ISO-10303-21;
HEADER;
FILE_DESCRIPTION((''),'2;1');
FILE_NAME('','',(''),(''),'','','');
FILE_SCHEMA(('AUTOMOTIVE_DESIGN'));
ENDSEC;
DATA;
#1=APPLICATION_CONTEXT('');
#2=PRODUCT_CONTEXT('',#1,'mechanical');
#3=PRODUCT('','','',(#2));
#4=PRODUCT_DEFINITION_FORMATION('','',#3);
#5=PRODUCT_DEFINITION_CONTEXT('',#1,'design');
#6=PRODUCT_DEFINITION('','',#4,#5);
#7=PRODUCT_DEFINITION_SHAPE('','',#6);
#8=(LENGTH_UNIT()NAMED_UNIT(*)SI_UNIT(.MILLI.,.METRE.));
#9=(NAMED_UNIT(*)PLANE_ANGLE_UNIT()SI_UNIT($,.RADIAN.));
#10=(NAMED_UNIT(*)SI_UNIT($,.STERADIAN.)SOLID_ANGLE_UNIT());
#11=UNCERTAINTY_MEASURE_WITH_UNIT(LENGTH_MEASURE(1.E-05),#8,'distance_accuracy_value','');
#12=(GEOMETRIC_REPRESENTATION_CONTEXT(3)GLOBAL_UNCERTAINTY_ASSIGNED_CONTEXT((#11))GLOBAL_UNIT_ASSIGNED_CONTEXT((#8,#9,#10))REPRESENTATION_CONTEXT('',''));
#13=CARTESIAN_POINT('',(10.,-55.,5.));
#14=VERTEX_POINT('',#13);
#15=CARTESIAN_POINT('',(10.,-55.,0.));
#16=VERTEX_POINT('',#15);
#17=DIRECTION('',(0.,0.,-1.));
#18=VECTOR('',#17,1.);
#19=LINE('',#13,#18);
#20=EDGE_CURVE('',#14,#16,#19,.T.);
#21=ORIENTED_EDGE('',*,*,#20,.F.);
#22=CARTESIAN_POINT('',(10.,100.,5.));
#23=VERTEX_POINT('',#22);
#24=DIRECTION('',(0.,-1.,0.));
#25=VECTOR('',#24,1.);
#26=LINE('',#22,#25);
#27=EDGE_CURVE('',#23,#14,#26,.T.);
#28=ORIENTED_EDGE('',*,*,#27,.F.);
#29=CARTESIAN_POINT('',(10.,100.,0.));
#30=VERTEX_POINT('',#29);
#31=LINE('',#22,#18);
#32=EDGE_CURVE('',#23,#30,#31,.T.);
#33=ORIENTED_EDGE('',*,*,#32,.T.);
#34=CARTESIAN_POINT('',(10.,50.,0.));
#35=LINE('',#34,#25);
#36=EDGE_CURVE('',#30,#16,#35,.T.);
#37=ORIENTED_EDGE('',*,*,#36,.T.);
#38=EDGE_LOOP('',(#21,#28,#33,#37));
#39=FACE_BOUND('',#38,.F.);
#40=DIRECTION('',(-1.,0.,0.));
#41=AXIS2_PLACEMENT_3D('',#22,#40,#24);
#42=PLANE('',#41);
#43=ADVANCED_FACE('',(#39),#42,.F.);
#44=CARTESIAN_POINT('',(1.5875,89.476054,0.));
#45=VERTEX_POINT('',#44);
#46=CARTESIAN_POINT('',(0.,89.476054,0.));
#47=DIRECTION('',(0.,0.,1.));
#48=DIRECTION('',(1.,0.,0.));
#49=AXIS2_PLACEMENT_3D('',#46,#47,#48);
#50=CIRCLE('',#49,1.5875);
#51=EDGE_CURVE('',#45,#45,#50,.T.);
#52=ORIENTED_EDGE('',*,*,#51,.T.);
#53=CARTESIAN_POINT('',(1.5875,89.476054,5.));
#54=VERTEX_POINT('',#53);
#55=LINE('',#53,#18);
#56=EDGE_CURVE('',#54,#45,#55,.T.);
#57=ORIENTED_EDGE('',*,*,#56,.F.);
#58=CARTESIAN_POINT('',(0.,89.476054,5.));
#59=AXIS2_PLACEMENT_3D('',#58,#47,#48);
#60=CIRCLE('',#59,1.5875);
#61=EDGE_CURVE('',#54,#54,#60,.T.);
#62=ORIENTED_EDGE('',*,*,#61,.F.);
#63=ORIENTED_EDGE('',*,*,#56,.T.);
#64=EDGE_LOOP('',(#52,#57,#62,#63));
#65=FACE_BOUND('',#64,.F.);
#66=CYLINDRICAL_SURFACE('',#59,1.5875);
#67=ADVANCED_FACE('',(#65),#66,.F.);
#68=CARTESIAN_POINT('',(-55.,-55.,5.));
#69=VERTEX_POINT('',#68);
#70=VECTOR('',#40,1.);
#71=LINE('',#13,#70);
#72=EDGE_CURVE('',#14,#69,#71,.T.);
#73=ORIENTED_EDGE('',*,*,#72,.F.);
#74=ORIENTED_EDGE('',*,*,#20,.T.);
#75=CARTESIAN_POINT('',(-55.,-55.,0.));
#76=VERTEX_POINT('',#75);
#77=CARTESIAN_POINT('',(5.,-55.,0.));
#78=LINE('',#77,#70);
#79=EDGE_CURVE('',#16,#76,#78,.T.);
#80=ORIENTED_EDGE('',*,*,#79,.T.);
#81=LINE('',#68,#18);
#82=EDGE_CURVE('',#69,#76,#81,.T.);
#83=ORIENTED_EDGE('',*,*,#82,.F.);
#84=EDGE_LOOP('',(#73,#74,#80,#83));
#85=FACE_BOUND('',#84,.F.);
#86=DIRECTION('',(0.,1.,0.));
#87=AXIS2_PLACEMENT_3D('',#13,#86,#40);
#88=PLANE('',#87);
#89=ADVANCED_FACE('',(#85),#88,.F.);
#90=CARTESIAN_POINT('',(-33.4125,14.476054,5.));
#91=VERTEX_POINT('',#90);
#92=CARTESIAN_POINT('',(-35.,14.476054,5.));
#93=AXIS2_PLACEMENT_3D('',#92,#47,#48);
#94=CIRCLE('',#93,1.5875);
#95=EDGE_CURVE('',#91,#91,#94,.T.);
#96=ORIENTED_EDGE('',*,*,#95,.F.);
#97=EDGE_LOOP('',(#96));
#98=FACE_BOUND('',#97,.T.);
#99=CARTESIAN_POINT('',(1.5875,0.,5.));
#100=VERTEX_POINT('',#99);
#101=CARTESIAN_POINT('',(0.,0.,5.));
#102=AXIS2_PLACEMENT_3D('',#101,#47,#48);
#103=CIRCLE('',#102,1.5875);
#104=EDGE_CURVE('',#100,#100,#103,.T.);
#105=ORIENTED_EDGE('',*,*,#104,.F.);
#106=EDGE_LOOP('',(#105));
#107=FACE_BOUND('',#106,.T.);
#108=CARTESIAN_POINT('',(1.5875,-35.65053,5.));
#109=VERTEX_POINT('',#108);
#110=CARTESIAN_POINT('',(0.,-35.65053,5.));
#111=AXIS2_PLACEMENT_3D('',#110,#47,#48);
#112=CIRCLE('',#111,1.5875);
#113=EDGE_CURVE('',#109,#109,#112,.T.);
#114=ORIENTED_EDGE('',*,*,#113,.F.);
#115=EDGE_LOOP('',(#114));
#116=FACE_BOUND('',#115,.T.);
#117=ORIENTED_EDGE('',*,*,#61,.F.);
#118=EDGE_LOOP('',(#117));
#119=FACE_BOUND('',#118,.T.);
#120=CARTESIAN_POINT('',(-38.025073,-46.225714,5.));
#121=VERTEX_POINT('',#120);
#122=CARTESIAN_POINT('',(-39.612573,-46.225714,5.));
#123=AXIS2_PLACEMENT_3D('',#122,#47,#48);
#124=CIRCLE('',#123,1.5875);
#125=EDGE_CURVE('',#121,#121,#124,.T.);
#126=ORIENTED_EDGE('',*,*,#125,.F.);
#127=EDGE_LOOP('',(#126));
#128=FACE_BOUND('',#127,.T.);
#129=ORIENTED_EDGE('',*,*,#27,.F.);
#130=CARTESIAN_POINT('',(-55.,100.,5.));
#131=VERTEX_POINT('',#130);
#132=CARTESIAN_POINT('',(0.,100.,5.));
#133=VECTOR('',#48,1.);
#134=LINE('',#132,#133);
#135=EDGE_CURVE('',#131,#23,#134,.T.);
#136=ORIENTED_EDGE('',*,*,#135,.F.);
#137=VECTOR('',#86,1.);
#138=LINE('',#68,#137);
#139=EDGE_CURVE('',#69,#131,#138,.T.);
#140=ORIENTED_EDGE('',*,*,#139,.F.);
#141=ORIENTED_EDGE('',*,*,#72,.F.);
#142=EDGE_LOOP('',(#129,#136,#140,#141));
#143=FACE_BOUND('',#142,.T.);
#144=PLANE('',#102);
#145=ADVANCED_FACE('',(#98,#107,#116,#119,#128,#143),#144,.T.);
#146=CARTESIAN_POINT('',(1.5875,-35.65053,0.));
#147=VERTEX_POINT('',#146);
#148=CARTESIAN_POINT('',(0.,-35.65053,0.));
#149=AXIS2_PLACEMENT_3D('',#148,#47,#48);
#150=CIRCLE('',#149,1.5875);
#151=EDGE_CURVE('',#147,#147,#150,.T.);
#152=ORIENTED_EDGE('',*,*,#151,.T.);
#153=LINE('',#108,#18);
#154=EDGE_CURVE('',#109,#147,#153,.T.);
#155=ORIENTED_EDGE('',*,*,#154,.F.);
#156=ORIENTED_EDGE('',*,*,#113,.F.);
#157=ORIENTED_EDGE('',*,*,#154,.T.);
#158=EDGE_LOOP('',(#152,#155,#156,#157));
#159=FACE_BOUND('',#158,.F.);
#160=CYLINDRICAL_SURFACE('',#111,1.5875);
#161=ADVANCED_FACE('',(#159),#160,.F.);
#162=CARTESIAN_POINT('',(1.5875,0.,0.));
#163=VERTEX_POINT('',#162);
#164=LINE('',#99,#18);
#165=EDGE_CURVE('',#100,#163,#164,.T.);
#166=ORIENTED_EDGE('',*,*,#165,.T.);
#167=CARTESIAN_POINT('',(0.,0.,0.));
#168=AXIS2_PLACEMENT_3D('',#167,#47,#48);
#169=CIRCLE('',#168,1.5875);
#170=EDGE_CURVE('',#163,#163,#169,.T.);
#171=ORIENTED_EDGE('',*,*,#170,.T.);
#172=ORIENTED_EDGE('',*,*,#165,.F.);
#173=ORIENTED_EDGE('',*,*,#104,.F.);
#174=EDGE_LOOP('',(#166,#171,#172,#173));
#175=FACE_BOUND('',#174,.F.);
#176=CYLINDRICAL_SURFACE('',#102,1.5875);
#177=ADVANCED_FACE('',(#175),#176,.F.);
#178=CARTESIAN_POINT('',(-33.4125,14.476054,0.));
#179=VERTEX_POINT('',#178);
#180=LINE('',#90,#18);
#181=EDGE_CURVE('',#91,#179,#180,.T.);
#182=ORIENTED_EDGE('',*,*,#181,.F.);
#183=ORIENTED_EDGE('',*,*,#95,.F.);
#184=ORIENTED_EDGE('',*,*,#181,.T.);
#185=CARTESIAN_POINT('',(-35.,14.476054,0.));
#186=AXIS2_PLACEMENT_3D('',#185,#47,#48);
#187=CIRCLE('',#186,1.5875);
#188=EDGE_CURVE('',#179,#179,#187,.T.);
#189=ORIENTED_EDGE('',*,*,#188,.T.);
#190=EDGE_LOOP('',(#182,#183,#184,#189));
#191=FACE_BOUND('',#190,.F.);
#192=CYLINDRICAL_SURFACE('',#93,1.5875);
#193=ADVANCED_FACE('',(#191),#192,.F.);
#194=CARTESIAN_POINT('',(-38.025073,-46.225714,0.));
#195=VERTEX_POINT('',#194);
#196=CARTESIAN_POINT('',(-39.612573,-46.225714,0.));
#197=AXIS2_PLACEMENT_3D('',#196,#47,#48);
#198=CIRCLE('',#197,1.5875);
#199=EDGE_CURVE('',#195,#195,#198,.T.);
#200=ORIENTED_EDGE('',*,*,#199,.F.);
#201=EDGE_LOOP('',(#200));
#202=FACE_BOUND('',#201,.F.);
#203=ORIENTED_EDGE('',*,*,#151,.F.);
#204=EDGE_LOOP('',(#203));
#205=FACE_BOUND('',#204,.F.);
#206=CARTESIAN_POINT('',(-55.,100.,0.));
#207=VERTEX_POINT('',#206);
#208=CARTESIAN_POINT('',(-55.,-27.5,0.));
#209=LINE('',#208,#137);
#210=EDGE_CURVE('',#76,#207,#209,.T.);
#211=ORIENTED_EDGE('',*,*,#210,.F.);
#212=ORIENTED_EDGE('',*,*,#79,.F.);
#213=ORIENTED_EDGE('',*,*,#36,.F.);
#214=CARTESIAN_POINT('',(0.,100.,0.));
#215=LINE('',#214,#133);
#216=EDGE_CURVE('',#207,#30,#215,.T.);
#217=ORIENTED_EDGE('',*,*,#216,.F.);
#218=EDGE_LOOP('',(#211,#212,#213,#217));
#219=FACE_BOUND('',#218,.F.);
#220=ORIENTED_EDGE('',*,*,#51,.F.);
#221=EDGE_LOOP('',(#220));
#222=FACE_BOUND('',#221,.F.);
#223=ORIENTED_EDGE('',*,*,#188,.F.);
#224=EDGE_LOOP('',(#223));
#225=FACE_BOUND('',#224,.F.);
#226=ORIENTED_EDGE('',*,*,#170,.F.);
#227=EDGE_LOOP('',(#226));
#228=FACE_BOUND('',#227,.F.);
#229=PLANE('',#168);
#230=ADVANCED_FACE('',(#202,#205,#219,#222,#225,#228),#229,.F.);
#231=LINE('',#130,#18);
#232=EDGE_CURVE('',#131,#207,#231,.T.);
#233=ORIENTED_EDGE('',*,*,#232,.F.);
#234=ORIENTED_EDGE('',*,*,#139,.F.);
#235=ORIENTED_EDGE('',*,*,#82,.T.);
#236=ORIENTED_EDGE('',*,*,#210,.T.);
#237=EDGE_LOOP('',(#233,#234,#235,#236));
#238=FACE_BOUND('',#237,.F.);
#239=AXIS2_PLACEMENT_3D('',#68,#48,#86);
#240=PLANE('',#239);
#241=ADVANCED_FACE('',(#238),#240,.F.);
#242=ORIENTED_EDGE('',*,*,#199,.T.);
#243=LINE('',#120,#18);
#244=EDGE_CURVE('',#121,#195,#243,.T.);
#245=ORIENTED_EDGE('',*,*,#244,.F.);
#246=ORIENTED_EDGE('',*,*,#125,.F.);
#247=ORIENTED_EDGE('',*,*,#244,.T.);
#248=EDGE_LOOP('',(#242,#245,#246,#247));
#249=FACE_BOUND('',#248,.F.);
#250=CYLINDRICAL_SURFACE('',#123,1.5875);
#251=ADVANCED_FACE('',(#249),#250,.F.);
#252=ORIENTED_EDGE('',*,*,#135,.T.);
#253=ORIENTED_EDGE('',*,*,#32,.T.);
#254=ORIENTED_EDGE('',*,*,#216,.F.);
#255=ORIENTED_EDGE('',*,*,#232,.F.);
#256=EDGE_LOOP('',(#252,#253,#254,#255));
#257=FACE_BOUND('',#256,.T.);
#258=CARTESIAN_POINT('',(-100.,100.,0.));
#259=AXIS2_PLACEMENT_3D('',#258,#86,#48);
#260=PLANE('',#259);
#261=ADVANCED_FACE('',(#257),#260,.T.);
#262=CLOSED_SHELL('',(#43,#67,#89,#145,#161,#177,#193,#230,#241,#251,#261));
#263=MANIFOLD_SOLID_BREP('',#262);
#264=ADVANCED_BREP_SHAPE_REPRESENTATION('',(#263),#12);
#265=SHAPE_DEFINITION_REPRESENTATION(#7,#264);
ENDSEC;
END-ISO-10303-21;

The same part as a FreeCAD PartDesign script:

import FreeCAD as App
import Part
import Sketcher

V = App.Vector
Q = App.Units.Quantity

doc = App.newDocument("Part")
params = doc.addObject("Spreadsheet::Sheet", "Params")
for row, (alias, value) in enumerate([
    ("sketch1_width", "200 mm"),
    ("pad1_length", "5 mm"),
    ("sketch3_width", "45 mm"),
    ("sketch3_width2", "200 mm"),
    ("sketch3_width3", "90 mm"),
    ("sketch3_height", "155 mm"),
    ("pocket2_length", "25 mm"),
], start=1):
    params.set(f"A{row}", alias)
    params.set(f"B{row}", "=" + value)
    params.setAlias(f"B{row}", alias)

body = doc.addObject("PartDesign::Body", "Body")

# Sketch on XY plane
sketch1 = doc.addObject("Sketcher::SketchObject", "Sketch")
body.addObject(sketch1)
sketch1.AttachmentSupport = (doc.XY_Plane, [""])
sketch1.MapMode = "FlatFace"
sketch1.addGeometry([
    Part.LineSegment(V(-100, 100, 0), V(-100, -100, 0)),
    Part.LineSegment(V(-100, -100, 0), V(100, -100, 0)),
    Part.LineSegment(V(100, -100, 0), V(100, 100, 0)),
    Part.LineSegment(V(100, 100, 0), V(-100, 100, 0)),
], False)
sketch1.addConstraint([
    Sketcher.Constraint("Coincident", 0, 2, 1, 1),
    Sketcher.Constraint("Coincident", 1, 2, 2, 1),
    Sketcher.Constraint("Coincident", 2, 2, 3, 1),
    Sketcher.Constraint("Coincident", 3, 2, 0, 1),
    Sketcher.Constraint("Vertical", 0),
    Sketcher.Constraint("Horizontal", 1),
    Sketcher.Constraint("Vertical", 2),
    Sketcher.Constraint("Horizontal", 3),
    Sketcher.Constraint("Symmetric", 0, 2, 2, 2, -1, 1),
    Sketcher.Constraint("Equal", 3, 0),
    Sketcher.Constraint("DistanceX", 1, 1, 1, 2, Q("200 mm")),
])
sketch1.setExpression("Constraints[10]", "Params.sketch1_width")
pad1 = doc.addObject("PartDesign::Pad", "Pad")
body.addObject(pad1)
pad1.Profile = sketch1
pad1.setExpression("Length", "Params.pad1_length")

# Sketch on XY plane
sketch2 = doc.addObject("Sketcher::SketchObject", "Sketch001")
body.addObject(sketch2)
sketch2.AttachmentSupport = (doc.XY_Plane, [""])
sketch2.MapMode = "FlatFace"
sketch2.AttachmentOffset = App.Placement(V(0, 0, 5), App.Rotation())
sketch2.addGeometry([
    Part.Circle(V(0, 0, 0), V(0, 0, 1), 1.6),  # 0
    Part.Circle(V(0, -35.7, 0), V(0, 0, 1), 1.6),  # 1
    Part.Circle(V(-39.6, -46.2, 0), V(0, 0, 1), 1.6),  # 2
    Part.Circle(V(-35, 14.5, 0), V(0, 0, 1), 1.6),  # 3
    Part.Circle(V(0, 89.5, 0), V(0, 0, 1), 1.6),  # 4
], False)
sketch2.addConstraint([
    Sketcher.Constraint("Coincident", 0, 3, -1, 1),
    Sketcher.Constraint("Equal", 0, 1),
    Sketcher.Constraint("Equal", 1, 2),
    Sketcher.Constraint("Equal", 2, 3),
    Sketcher.Constraint("Equal", 3, 4),
    Sketcher.Constraint("PointOnObject", 1, 3, -2),
    Sketcher.Constraint("PointOnObject", 4, 3, -2),
    Sketcher.Constraint("Diameter", 0, Q("3.175 mm")),
    Sketcher.Constraint("DistanceX", 3, 3, -1, 1, Q("35 mm")),
    Sketcher.Constraint("DistanceY", 3, 3, 4, 3, Q("75 mm")),
    Sketcher.Constraint("DistanceY", 1, 3, -1, 1, Q("35.65053 mm")),
    Sketcher.Constraint("DistanceY", 2, 3, 4, 3, Q("135.701768 mm")),
    Sketcher.Constraint("DistanceX", 2, 3, -1, 1, Q("39.612573 mm")),
    Sketcher.Constraint("DistanceY", 2, 3, -1, 1, Q("46.225714 mm")),
])
pocket1 = doc.addObject("PartDesign::Pocket", "Pocket")
body.addObject(pocket1)
pocket1.Profile = sketch2
pocket1.Type = "ThroughAll"

# Sketch on XY plane
sketch3 = doc.addObject("Sketcher::SketchObject", "Sketch002")
body.addObject(sketch3)
sketch3.AttachmentSupport = (doc.XY_Plane, [""])
sketch3.MapMode = "FlatFace"
sketch3.AttachmentOffset = App.Placement(V(0, 0, 5), App.Rotation())
sketch3.addGeometry([
    Part.LineSegment(V(-55, -55, 0), V(-55, 100, 0)),  # 0
    Part.LineSegment(V(-55, 100, 0), V(-100, 100, 0)),  # 1
    Part.LineSegment(V(-100, 100, 0), V(-100, -100, 0)),  # 2
    Part.LineSegment(V(-100, -100, 0), V(100, -100, 0)),  # 3
    Part.LineSegment(V(100, -100, 0), V(100, 100, 0)),  # 4
    Part.LineSegment(V(100, 100, 0), V(10, 100, 0)),  # 5
    Part.LineSegment(V(10, 100, 0), V(10, -55, 0)),  # 6
    Part.LineSegment(V(10, -55, 0), V(-55, -55, 0)),  # 7
    Part.Circle(V(0, 0, 0), V(0, 0, 1), 1.6),  # 8
    Part.Circle(V(0, -35.7, 0), V(0, 0, 1), 1.6),  # 9
    Part.Circle(V(-39.6, -46.2, 0), V(0, 0, 1), 1.6),  # 10
    Part.Circle(V(-35, 14.5, 0), V(0, 0, 1), 1.6),  # 11
    Part.Circle(V(0, 89.5, 0), V(0, 0, 1), 1.6),  # 12
], False)
sketch3.addConstraint([
    Sketcher.Constraint("Coincident", 0, 2, 1, 1),
    Sketcher.Constraint("Coincident", 1, 2, 2, 1),
    Sketcher.Constraint("Coincident", 2, 2, 3, 1),
    Sketcher.Constraint("Coincident", 3, 2, 4, 1),
    Sketcher.Constraint("Coincident", 4, 2, 5, 1),
    Sketcher.Constraint("Coincident", 5, 2, 6, 1),
    Sketcher.Constraint("Coincident", 6, 2, 7, 1),
    Sketcher.Constraint("Coincident", 7, 2, 0, 1),
    Sketcher.Constraint("Vertical", 0),
    Sketcher.Constraint("Horizontal", 1),
    Sketcher.Constraint("Vertical", 2),
    Sketcher.Constraint("Horizontal", 3),
    Sketcher.Constraint("Vertical", 4),
    Sketcher.Constraint("Horizontal", 5),
    Sketcher.Constraint("Vertical", 6),
    Sketcher.Constraint("Horizontal", 7),
    Sketcher.Constraint("Coincident", 8, 3, -1, 1),
    Sketcher.Constraint("Equal", 8, 9),
    Sketcher.Constraint("Equal", 9, 10),
    Sketcher.Constraint("Equal", 10, 11),
    Sketcher.Constraint("Equal", 11, 12),
    Sketcher.Constraint("Symmetric", 1, 2, 3, 2, -1, 1),
    Sketcher.Constraint("PointOnObject", 9, 3, -2),
    Sketcher.Constraint("PointOnObject", 12, 3, -2),
    Sketcher.Constraint("Horizontal", 1, 2, 4, 2),
    Sketcher.Constraint("Equal", 3, 2),
    Sketcher.Constraint("DistanceX", 1, 2, 1, 1, Q("45 mm")),
    Sketcher.Constraint("DistanceX", 3, 1, 3, 2, Q("200 mm")),
    Sketcher.Constraint("DistanceX", 5, 2, 5, 1, Q("90 mm")),
    Sketcher.Constraint("DistanceY", 0, 1, 0, 2, Q("155 mm")),
    Sketcher.Constraint("Diameter", 8, Q("3.175 mm")),
    Sketcher.Constraint("DistanceX", 11, 3, -1, 1, Q("35 mm")),
    Sketcher.Constraint("DistanceY", 11, 3, 12, 3, Q("75 mm")),
    Sketcher.Constraint("DistanceY", 9, 3, -1, 1, Q("35.65053 mm")),
    Sketcher.Constraint("DistanceY", 10, 3, 12, 3, Q("135.701768 mm")),
    Sketcher.Constraint("DistanceX", 10, 3, -1, 1, Q("39.612573 mm")),
    Sketcher.Constraint("DistanceY", 10, 3, -1, 1, Q("46.225714 mm")),
])
sketch3.setExpression("Constraints[26]", "Params.sketch3_width")
sketch3.setExpression("Constraints[27]", "Params.sketch3_width2")
sketch3.setExpression("Constraints[28]", "Params.sketch3_width3")
sketch3.setExpression("Constraints[29]", "Params.sketch3_height")
pocket2 = doc.addObject("PartDesign::Pocket", "Pocket001")
body.addObject(pocket2)
pocket2.Profile = sketch3
pocket2.setExpression("Length", "Params.pocket2_length")

doc.recompute()
